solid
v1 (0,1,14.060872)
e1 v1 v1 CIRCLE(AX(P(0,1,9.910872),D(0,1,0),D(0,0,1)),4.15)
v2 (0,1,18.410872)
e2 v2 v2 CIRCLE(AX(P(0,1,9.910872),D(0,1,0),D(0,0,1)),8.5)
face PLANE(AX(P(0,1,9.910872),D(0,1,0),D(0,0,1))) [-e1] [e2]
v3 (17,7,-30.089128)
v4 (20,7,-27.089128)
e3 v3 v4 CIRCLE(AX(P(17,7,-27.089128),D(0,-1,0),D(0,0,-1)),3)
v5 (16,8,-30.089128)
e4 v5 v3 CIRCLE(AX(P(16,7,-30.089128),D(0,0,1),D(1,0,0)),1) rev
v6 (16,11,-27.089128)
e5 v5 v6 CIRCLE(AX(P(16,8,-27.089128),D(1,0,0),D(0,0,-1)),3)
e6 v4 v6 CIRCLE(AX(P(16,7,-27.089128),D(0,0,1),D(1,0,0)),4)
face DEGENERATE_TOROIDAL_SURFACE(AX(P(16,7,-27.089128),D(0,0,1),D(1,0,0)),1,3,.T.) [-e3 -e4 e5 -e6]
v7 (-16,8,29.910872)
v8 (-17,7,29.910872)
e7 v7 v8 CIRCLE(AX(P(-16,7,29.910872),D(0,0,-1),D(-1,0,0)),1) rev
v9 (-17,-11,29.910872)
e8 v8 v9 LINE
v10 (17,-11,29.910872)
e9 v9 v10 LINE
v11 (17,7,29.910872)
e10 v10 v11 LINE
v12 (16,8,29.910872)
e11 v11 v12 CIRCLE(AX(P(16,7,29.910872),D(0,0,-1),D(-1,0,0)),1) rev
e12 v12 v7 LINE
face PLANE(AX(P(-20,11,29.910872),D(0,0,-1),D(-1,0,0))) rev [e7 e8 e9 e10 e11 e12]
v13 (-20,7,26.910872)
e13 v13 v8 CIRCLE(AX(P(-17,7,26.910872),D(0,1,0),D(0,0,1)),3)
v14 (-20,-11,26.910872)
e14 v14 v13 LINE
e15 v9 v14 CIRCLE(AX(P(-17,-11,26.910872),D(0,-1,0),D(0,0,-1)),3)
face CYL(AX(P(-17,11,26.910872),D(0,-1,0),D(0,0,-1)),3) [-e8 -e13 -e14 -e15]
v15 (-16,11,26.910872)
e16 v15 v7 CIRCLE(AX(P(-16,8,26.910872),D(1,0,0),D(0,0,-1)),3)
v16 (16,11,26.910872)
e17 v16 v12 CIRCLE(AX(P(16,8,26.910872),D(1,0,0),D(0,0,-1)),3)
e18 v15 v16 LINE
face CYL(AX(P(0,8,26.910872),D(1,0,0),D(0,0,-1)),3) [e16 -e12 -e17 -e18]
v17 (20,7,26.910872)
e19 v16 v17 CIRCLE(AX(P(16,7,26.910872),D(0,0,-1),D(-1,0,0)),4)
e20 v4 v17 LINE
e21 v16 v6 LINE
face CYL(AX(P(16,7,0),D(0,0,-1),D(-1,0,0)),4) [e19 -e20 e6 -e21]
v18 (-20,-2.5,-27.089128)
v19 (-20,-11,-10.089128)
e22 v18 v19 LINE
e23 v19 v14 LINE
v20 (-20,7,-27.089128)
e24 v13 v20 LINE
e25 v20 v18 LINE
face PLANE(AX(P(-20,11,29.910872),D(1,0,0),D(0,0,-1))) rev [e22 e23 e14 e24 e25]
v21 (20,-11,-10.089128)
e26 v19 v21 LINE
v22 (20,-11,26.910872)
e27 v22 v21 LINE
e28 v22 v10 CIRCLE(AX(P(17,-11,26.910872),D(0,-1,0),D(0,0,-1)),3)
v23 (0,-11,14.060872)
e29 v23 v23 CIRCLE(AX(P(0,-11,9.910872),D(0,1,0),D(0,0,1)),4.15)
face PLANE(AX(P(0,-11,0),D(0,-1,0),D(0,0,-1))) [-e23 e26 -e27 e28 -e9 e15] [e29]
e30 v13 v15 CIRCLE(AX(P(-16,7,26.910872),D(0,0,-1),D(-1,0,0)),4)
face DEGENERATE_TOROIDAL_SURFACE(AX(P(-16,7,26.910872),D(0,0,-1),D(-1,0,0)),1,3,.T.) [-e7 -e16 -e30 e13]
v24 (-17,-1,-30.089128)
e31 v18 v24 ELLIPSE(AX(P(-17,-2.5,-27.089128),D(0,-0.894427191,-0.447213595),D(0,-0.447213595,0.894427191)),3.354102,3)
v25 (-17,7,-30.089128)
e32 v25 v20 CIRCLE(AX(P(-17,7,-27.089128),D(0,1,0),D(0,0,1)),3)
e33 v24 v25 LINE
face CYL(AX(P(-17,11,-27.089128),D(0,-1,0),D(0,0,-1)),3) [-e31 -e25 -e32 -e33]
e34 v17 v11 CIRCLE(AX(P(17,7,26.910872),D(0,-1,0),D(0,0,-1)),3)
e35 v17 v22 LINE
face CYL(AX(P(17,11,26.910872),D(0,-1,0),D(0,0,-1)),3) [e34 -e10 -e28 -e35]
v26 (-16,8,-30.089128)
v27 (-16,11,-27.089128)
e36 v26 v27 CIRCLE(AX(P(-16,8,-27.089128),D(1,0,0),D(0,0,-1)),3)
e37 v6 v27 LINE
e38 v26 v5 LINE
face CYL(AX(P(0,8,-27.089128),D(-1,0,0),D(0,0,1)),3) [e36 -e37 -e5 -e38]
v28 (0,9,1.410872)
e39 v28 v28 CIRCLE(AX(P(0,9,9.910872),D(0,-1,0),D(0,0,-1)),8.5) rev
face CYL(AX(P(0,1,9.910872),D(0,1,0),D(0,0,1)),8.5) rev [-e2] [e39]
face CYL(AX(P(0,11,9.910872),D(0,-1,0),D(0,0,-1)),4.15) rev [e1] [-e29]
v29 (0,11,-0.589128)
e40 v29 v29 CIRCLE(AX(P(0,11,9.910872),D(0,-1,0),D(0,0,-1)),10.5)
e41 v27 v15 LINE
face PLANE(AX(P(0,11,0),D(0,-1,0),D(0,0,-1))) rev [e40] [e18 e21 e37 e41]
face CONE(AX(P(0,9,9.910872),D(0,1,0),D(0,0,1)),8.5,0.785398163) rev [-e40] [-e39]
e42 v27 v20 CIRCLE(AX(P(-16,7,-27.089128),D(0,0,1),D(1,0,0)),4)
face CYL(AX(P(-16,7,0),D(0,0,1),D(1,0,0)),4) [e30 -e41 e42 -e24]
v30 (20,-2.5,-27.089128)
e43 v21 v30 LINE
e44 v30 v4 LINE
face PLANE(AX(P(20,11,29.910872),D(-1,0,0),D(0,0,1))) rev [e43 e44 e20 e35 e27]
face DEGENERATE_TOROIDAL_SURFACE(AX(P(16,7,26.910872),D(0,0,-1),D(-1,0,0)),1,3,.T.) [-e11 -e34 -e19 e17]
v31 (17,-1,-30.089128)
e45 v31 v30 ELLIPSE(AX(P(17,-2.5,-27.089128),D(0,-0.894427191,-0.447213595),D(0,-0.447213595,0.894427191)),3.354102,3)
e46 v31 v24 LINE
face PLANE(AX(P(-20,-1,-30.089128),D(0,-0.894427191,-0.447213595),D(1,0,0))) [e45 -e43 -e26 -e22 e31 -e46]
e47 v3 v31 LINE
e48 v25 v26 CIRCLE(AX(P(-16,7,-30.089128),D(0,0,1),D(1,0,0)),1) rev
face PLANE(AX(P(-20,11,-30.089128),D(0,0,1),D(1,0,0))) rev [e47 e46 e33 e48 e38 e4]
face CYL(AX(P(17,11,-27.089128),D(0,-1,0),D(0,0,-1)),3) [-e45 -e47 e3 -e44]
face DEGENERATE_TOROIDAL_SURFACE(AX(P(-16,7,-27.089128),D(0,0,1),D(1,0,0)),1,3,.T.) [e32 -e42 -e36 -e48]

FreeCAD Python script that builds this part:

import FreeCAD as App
import Part
import Sketcher

V = App.Vector


def edges_at(feature, points):
    """Names of the edges that pass closest to the given points."""
    edges = feature.Shape.Edges
    near = lambda p: min(range(len(edges)), key=lambda i: edges[i].distToShape(Part.Vertex(*p))[0])
    return sorted({f"Edge{near(p) + 1}" for p in points})


def add_polygon(sketch, points):
    """Adds a closed chain of lines whose ends are joined by coincident constraints."""
    first, n = sketch.GeometryCount, len(points)
    for a, b in zip(points, points[1:] + points[:1]):
        sketch.addGeometry(Part.LineSegment(App.Vector(*a, 0), App.Vector(*b, 0)), False)
    for i in range(n):
        sketch.addConstraint(Sketcher.Constraint("Coincident", first + i, 2, first + (i + 1) % n, 1))

doc = App.newDocument("Part")
body = doc.addObject("PartDesign::Body", "Body")

# Sketch on XZ plane
sketch1 = body.newObject("Sketcher::SketchObject", "Sketch")
sketch1.AttachmentSupport = (doc.getObject("XZ_Plane"), [""])
sketch1.MapMode = "FlatFace"
add_polygon(sketch1, [(-20, -30.1), (-20, 29.9), (20, 29.9), (20, -30.1)])  # lines 0-3
sketch1.addGeometry(Part.Circle(V(0, 9.9, 0), V(0, 0, 1), 4.2), False)  # 4
sketch1.addConstraint([
    Sketcher.Constraint("Vertical", 0),
    Sketcher.Constraint("Horizontal", 1),
    Sketcher.Constraint("Vertical", 2),
    Sketcher.Constraint("Horizontal", 3),
    Sketcher.Constraint("PointOnObject", 4, 3, -2),
    Sketcher.Constraint("Diameter", 4, 8.3),
    Sketcher.Constraint("DistanceX", 1, 1, 1, 2, 40.0),
    Sketcher.Constraint("DistanceY", 0, 1, 0, 2, 60.0),
    Sketcher.Constraint("DistanceX", 0, 2, -1, 1, 20.0),
    Sketcher.Constraint("DistanceY", 4, 3, 0, 2, 20.0),
    Sketcher.Constraint("DistanceY", -1, 1, 4, 3, 9.910872),
])
pad1 = body.newObject("PartDesign::Pad", "Pad")
pad1.Profile = sketch1
pad1.Length = 22
pad1.Midplane = True

# Sketch on XZ plane
sketch2 = body.newObject("Sketcher::SketchObject", "Sketch001")
sketch2.AttachmentSupport = (doc.getObject("XZ_Plane"), [""])
sketch2.MapMode = "FlatFace"
sketch2.AttachmentOffset = App.Placement(V(0, 0, -11), App.Rotation())
sketch2.addGeometry(Part.Circle(V(0, 10, 0), V(0, 0, 1), 8), False)
sketch2.addConstraint([
    Sketcher.Constraint("PointOnObject", 0, 3, -2),
    Sketcher.Constraint("Diameter", 0, 17.0),
    Sketcher.Constraint("DistanceY", -1, 1, 0, 3, 9.910872),
])
pocket1 = body.newObject("PartDesign::Pocket", "Pocket")
pocket1.Profile = sketch2
pocket1.Length = 10
pocket1.Reversed = True
doc.recompute()

fillet = body.newObject("PartDesign::Fillet", "Fillet")
fillet.Base = (pocket1, edges_at(pocket1, [(-20, 11, -0.089), (20, 11, -0.089)]))
fillet.Radius = 4
doc.recompute()

chamfer = body.newObject("PartDesign::Chamfer", "Chamfer")
chamfer.Base = (fillet, edges_at(fillet, [(-8.5, 11, 9.911)]))
chamfer.Size = 2
doc.recompute()

chamfer2 = body.newObject("PartDesign::Chamfer", "Chamfer001")
chamfer2.Base = (chamfer, edges_at(chamfer, [(0, -11, -30.089)]))
chamfer2.ChamferType = "Two distances"
chamfer2.Size = 20
chamfer2.Size2 = 10
chamfer2.FlipDirection = True
doc.recompute()

fillet2 = body.newObject("PartDesign::Fillet", "Fillet001")
fillet2.Base = (chamfer2, edges_at(chamfer2, [
    (0, 11, -30.089),
    (0, 11, 29.911),
    (20, -2, 29.911),
    (-20, -2, 29.911),
    (18.828, 9.828, 29.911),
    (-18.828, 9.828, 29.911),
    (-20, 3, -30.089),
    (20, 3, -30.089),
    (18.828, 9.828, -30.089),
    (-18.828, 9.828, -30.089),
]))
fillet2.Radius = 3

doc.recompute()
